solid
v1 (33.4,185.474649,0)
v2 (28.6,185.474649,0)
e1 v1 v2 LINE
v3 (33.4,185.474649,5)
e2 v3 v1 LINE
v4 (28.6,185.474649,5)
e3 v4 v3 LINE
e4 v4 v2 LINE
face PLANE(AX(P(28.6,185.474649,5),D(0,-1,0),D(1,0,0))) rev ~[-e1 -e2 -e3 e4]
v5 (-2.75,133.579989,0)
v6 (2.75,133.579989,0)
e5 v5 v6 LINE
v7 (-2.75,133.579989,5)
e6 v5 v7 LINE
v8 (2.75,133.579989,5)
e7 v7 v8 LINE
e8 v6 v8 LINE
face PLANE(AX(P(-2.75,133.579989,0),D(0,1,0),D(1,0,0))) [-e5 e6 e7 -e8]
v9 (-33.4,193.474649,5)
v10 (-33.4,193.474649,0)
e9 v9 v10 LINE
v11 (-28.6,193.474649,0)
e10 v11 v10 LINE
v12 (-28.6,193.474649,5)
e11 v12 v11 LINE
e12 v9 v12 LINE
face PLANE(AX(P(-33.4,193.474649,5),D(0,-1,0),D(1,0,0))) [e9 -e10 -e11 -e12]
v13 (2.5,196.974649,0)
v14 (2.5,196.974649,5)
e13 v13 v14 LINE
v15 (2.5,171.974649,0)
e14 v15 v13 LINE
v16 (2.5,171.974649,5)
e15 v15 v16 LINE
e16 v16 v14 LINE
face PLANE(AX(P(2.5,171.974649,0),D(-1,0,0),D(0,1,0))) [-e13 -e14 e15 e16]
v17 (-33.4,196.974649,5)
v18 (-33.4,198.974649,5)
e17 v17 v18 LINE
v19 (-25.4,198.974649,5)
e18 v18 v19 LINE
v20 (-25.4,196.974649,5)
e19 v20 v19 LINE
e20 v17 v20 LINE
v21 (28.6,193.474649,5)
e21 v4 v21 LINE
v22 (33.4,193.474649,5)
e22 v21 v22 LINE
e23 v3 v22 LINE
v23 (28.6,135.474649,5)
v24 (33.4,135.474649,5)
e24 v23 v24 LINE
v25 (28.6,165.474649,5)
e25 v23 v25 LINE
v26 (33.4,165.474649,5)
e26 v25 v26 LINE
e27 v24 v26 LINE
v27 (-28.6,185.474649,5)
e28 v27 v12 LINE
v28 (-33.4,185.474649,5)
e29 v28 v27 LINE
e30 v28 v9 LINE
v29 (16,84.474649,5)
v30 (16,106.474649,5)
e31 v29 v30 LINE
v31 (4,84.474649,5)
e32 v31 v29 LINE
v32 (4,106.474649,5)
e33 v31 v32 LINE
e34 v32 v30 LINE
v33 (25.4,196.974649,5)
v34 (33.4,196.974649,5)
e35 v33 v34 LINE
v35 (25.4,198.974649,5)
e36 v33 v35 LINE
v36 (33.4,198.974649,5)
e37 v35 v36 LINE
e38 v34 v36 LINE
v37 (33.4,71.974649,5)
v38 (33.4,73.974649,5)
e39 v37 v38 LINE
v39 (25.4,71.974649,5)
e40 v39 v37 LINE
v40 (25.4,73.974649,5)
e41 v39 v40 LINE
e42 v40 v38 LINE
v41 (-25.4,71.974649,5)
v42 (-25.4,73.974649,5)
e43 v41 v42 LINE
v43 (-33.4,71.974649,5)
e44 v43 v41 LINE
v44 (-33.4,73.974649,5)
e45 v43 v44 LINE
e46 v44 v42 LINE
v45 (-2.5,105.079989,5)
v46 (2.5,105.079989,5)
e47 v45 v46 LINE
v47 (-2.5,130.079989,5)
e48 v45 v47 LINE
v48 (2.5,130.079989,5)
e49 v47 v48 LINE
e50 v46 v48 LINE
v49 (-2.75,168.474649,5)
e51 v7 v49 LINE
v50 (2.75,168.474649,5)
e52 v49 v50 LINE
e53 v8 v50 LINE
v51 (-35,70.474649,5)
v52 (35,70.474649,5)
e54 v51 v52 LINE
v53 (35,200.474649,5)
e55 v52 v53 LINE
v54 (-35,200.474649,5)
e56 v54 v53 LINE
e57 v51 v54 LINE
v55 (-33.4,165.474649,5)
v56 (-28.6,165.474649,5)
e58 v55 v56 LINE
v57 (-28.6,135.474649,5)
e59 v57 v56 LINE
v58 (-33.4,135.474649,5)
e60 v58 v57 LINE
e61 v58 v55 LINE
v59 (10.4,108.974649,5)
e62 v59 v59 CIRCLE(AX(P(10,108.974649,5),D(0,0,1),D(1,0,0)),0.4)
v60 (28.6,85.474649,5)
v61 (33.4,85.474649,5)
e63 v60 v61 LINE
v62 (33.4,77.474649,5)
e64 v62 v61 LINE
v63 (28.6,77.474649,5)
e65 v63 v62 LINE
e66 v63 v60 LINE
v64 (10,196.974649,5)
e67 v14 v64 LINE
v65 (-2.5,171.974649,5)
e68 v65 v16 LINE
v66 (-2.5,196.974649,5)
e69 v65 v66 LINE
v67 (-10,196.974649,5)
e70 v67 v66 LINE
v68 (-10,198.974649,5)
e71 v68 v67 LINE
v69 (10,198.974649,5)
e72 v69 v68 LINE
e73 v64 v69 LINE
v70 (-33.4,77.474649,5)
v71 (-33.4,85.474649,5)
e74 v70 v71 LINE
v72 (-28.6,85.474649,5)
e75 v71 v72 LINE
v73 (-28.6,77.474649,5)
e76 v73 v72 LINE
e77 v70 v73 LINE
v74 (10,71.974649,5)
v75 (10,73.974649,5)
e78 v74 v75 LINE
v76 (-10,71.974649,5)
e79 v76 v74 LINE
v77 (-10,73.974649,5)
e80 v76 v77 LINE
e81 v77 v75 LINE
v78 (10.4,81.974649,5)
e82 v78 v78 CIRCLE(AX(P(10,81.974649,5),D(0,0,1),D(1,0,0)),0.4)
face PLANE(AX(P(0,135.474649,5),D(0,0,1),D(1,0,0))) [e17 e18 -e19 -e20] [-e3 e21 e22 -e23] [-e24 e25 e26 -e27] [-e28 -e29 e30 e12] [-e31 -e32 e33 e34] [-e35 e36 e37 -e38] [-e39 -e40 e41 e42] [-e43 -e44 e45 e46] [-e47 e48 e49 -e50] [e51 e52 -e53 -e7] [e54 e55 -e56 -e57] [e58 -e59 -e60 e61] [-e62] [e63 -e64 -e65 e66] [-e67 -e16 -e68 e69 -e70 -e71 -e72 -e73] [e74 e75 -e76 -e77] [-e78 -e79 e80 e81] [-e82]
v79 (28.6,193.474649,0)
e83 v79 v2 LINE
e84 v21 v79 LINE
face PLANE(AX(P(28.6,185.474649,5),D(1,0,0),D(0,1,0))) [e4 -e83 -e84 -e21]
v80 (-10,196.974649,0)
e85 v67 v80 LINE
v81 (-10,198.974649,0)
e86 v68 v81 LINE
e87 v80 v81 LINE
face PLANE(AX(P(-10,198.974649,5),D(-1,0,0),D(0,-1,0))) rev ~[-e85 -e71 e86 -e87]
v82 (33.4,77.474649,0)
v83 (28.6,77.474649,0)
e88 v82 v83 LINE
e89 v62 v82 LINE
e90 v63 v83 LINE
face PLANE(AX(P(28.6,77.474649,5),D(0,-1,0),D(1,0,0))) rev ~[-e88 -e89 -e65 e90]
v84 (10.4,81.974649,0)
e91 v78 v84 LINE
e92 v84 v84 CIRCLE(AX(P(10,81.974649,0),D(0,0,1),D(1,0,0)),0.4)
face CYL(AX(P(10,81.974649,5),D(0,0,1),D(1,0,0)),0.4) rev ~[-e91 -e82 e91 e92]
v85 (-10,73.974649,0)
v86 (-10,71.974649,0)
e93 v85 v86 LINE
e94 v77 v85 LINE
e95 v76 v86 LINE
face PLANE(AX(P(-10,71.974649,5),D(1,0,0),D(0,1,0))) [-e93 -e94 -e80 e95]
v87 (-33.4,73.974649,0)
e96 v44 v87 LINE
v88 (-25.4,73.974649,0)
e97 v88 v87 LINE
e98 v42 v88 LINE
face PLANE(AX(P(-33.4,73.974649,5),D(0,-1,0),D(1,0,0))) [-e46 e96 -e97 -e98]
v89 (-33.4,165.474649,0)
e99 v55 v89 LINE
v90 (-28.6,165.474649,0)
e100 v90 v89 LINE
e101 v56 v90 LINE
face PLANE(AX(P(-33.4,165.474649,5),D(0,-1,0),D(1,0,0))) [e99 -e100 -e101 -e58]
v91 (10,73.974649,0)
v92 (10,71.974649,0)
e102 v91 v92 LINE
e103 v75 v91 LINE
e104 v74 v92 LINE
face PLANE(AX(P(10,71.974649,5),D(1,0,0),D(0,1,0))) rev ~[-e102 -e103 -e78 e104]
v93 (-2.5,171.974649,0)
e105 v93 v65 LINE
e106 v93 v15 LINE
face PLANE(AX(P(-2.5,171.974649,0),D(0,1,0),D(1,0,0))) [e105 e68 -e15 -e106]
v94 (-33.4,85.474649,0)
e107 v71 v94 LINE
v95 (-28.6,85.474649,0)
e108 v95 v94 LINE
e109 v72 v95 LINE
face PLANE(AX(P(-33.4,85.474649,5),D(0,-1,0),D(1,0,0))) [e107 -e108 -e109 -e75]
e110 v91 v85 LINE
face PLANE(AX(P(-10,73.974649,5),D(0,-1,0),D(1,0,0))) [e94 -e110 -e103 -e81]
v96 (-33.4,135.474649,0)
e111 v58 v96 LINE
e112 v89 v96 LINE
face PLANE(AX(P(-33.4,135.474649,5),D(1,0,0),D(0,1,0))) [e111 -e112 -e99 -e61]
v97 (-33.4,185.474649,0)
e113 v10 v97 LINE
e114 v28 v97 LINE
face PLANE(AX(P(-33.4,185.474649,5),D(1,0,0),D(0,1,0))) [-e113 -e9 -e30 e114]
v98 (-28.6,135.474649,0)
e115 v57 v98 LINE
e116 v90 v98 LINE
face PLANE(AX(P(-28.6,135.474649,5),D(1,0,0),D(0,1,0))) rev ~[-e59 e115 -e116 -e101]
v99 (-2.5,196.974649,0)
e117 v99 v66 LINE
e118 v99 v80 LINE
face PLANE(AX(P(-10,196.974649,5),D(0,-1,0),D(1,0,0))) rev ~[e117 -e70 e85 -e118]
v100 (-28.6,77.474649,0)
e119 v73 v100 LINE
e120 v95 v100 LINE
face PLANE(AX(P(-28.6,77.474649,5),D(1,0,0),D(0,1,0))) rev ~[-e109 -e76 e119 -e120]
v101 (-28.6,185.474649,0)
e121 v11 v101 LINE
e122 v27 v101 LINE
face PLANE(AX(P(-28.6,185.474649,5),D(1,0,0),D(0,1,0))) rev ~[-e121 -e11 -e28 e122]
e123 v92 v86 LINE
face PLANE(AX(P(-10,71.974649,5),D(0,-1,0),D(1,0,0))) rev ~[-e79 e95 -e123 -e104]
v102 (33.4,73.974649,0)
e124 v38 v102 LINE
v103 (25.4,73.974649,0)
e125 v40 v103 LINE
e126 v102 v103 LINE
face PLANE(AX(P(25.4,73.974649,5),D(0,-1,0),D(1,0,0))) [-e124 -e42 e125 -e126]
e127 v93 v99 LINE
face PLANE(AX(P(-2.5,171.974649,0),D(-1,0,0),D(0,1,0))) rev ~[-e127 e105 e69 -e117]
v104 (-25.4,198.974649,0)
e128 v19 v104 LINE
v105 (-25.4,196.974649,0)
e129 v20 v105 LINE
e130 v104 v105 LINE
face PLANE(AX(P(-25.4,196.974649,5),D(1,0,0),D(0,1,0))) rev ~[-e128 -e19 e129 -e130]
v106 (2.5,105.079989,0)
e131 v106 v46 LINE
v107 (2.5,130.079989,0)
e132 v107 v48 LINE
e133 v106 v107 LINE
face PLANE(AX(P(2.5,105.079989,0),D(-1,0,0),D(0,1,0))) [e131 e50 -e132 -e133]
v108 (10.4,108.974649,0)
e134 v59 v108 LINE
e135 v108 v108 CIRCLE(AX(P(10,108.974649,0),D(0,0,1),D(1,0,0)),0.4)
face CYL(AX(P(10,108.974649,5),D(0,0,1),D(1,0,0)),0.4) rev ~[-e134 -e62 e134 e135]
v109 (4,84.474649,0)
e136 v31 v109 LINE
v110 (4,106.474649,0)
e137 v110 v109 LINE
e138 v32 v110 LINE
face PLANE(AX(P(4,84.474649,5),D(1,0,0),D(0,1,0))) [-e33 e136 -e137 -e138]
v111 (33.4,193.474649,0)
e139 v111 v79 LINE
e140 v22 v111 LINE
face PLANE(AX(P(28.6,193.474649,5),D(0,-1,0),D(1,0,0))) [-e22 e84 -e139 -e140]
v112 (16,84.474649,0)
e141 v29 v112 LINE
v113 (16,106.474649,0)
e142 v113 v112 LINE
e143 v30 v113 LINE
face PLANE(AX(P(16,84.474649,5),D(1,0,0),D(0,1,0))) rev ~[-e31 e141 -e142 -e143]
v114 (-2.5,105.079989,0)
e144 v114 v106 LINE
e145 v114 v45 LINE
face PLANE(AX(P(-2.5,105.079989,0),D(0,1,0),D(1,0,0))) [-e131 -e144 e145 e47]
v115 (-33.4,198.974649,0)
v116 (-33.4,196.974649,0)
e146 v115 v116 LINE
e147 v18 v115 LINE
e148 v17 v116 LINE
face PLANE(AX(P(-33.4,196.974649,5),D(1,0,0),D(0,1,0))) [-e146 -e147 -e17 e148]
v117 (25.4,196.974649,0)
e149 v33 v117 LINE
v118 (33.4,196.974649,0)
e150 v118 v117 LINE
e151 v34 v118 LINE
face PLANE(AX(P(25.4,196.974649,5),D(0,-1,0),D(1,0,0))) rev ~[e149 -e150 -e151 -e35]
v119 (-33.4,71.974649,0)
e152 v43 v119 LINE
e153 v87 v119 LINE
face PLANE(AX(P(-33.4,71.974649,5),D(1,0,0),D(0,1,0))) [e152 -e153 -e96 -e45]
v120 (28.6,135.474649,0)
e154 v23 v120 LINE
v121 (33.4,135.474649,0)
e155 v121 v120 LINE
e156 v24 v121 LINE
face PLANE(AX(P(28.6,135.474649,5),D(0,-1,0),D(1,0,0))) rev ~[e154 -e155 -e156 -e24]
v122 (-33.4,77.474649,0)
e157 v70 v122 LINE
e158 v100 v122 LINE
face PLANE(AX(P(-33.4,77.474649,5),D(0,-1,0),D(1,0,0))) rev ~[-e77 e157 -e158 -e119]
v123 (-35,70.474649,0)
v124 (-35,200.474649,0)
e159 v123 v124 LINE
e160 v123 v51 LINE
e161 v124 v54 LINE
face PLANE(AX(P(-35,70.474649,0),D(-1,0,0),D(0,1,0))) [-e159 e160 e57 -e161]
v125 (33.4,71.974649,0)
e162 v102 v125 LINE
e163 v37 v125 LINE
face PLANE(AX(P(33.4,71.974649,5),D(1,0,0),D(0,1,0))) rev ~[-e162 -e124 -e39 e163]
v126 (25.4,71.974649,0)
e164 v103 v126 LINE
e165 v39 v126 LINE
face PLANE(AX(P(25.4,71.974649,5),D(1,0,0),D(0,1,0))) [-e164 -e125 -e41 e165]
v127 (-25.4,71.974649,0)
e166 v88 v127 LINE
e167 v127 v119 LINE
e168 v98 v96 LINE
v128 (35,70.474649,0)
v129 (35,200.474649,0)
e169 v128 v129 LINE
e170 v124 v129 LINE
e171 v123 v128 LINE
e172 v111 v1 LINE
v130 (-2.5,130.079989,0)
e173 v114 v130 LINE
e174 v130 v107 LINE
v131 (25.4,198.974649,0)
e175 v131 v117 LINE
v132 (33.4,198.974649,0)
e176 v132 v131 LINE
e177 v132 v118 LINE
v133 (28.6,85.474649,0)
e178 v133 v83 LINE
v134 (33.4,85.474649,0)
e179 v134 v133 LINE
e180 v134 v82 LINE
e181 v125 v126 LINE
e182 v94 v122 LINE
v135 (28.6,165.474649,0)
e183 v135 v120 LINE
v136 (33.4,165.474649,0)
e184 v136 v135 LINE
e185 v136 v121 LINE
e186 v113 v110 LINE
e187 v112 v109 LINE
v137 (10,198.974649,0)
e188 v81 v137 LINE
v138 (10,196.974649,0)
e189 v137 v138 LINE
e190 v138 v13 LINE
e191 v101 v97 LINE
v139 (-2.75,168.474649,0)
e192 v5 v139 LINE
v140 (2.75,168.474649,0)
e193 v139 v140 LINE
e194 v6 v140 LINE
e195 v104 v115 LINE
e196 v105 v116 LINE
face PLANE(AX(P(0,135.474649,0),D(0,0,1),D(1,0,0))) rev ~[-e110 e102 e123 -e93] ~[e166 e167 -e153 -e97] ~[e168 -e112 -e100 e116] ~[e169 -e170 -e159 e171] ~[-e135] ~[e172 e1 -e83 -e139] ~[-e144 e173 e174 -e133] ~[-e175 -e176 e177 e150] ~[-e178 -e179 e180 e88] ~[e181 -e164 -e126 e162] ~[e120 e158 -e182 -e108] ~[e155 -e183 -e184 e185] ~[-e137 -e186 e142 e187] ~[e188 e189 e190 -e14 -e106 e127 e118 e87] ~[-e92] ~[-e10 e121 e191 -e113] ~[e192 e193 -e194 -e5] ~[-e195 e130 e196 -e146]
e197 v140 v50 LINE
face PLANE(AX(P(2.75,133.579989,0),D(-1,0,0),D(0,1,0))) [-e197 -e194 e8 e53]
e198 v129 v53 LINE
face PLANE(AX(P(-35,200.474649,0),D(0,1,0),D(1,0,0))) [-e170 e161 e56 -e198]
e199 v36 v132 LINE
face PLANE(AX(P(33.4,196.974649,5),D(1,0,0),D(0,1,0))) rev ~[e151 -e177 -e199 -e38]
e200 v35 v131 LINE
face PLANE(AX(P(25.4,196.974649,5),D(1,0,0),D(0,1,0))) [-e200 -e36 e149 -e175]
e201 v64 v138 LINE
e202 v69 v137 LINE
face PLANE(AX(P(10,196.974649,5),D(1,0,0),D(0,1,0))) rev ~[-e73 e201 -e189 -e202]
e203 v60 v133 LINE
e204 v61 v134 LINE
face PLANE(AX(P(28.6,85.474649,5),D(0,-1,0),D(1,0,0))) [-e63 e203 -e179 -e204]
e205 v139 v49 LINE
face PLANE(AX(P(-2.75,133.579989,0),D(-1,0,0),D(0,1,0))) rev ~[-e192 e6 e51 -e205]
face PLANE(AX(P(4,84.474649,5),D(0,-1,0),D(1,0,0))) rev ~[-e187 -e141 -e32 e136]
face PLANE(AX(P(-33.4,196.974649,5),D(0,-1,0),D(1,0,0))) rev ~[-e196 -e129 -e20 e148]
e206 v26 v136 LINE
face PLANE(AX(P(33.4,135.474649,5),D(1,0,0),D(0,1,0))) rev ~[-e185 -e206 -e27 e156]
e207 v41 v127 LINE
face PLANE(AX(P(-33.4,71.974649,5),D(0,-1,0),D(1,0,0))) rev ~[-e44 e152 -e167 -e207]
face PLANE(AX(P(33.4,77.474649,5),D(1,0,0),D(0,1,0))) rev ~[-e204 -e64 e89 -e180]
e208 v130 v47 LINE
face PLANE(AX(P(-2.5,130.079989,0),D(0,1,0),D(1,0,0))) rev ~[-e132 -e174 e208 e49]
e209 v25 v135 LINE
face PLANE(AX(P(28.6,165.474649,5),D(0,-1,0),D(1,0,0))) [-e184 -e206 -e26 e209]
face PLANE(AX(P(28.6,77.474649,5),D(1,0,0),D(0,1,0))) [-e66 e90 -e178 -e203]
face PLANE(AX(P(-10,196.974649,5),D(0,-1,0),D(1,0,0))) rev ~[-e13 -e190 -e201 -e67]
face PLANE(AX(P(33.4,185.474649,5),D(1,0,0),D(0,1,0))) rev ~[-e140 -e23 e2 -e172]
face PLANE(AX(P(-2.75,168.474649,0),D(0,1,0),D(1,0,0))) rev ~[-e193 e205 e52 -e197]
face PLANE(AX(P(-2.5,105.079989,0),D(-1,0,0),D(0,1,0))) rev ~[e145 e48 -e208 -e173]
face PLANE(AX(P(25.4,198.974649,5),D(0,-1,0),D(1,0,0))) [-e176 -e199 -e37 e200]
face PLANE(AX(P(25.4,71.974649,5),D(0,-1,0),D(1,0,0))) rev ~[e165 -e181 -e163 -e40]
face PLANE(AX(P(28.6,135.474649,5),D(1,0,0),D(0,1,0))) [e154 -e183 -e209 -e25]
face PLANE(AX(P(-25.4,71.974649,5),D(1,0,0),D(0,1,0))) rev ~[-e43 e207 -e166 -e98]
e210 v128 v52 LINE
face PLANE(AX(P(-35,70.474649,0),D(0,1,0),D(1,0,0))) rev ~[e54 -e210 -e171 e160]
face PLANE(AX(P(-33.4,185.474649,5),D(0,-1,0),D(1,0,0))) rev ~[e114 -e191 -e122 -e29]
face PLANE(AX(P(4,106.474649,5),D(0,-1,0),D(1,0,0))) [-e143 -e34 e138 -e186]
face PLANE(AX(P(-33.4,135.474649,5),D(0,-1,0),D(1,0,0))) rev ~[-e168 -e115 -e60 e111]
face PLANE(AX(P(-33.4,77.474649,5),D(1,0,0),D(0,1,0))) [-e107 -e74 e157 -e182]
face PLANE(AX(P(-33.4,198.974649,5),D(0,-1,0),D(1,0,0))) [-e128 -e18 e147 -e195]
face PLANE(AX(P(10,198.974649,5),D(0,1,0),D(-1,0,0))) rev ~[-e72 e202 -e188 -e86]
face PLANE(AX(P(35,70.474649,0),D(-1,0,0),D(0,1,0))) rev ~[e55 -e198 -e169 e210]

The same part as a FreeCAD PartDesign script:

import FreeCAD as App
import Part
import Sketcher
from FreeCAD import Vector

doc = App.newDocument("Part")
body = doc.addObject("PartDesign::Body", "Body")

# Sketch on XY plane
sketch1 = body.newObject("Sketcher::SketchObject", "Sketch")
sketch1.AttachmentSupport = (doc.getObject("XY_Plane"), [""])
sketch1.MapMode = "FlatFace"
sketch1.addGeometry([
    Part.LineSegment(Vector(-35, 200.474649, 0), Vector(-35, 70.474649, 0)),  # 0
    Part.LineSegment(Vector(-35, 70.474649, 0), Vector(35, 70.474649, 0)),  # 1
    Part.LineSegment(Vector(35, 70.474649, 0), Vector(35, 200.474649, 0)),  # 2
    Part.LineSegment(Vector(35, 200.474649, 0), Vector(-35, 200.474649, 0)),  # 3
    Part.LineSegment(Vector(2.5, 105.079989, 0), Vector(-2.5, 105.079989, 0)),  # 4
    Part.LineSegment(Vector(-2.5, 105.079989, 0), Vector(-2.5, 130.079989, 0)),  # 5
    Part.LineSegment(Vector(-2.5, 130.079989, 0), Vector(2.5, 130.079989, 0)),  # 6
    Part.LineSegment(Vector(2.5, 130.079989, 0), Vector(2.5, 105.079989, 0)),  # 7
    Part.LineSegment(Vector(2.75, 133.579989, 0), Vector(-2.75, 133.579989, 0)),  # 8
    Part.LineSegment(Vector(-2.75, 133.579989, 0), Vector(-2.75, 168.474649, 0)),  # 9
    Part.LineSegment(Vector(-2.75, 168.474649, 0), Vector(2.75, 168.474649, 0)),  # 10
    Part.LineSegment(Vector(2.75, 168.474649, 0), Vector(2.75, 133.579989, 0)),  # 11
    Part.LineSegment(Vector(2.5, 171.974649, 0), Vector(-2.5, 171.974649, 0)),  # 12
    Part.LineSegment(Vector(-2.5, 171.974649, 0), Vector(-2.5, 196.974649, 0)),  # 13
    Part.LineSegment(Vector(-2.5, 196.974649, 0), Vector(2.5, 196.974649, 0)),  # 14
    Part.LineSegment(Vector(2.5, 196.974649, 0), Vector(2.5, 171.974649, 0)),  # 15
], False)
sketch1.addConstraint([
    Sketcher.Constraint("Coincident", 0, 2, 1, 1),
    Sketcher.Constraint("Coincident", 1, 2, 2, 1),
    Sketcher.Constraint("Coincident", 2, 2, 3, 1),
    Sketcher.Constraint("Coincident", 3, 2, 0, 1),
    Sketcher.Constraint("Coincident", 4, 2, 5, 1),
    Sketcher.Constraint("Coincident", 5, 2, 6, 1),
    Sketcher.Constraint("Coincident", 6, 2, 7, 1),
    Sketcher.Constraint("Coincident", 7, 2, 4, 1),
    Sketcher.Constraint("Coincident", 8, 2, 9, 1),
    Sketcher.Constraint("Coincident", 9, 2, 10, 1),
    Sketcher.Constraint("Coincident", 10, 2, 11, 1),
    Sketcher.Constraint("Coincident", 11, 2, 8, 1),
    Sketcher.Constraint("Coincident", 12, 2, 13, 1),
    Sketcher.Constraint("Coincident", 13, 2, 14, 1),
    Sketcher.Constraint("Coincident", 14, 2, 15, 1),
    Sketcher.Constraint("Coincident", 15, 2, 12, 1),
    Sketcher.Constraint("Vertical", 0),
    Sketcher.Constraint("Horizontal", 1),
    Sketcher.Constraint("Vertical", 2),
    Sketcher.Constraint("Horizontal", 3),
    Sketcher.Constraint("Horizontal", 4),
    Sketcher.Constraint("Vertical", 5),
    Sketcher.Constraint("Horizontal", 6),
    Sketcher.Constraint("Vertical", 7),
    Sketcher.Constraint("Horizontal", 8),
    Sketcher.Constraint("Vertical", 9),
    Sketcher.Constraint("Horizontal", 10),
    Sketcher.Constraint("Vertical", 11),
    Sketcher.Constraint("Horizontal", 12),
    Sketcher.Constraint("Vertical", 13),
    Sketcher.Constraint("Horizontal", 14),
    Sketcher.Constraint("Vertical", 15),
    Sketcher.Constraint("Vertical", 5, 2, 12, 2),
    Sketcher.Constraint("Vertical", 7, 2, 14, 2),
    Sketcher.Constraint("Equal", 7, 13),
    Sketcher.Constraint("DistanceX", 1, 1, 1, 2, 70.0),
    Sketcher.Constraint("DistanceX", 4, 2, 4, 1, 5.0),
    Sketcher.Constraint("DistanceY", 0, 2, 0, 1, 130.0),
    Sketcher.Constraint("DistanceY", 5, 1, 5, 2, 25.0),
    Sketcher.Constraint("DistanceX", 8, 2, 8, 1, 5.5),
    Sketcher.Constraint("DistanceX", 0, 2, -1, 1, 35.0),
    Sketcher.Constraint("DistanceY", 9, 2, 3, 2, 32.0),
    Sketcher.Constraint("DistanceX", 4, 2, -1, 1, 2.5),
    Sketcher.Constraint("DistanceY", 5, 2, 8, 2, 3.5),
    Sketcher.Constraint("DistanceY", 9, 2, 12, 2, 3.5),
    Sketcher.Constraint("DistanceX", 8, 2, -1, 1, 2.75),
    Sketcher.Constraint("DistanceY", 9, 1, 9, 2, 34.89466),
    Sketcher.Constraint("DistanceY", -1, 1, 0, 2, 70.474649),
])
pad1 = body.newObject("PartDesign::Pad", "Pad")
pad1.Profile = sketch1
pad1.Length = 5

# Sketch on XY plane
sketch2 = body.newObject("Sketcher::SketchObject", "Sketch001")
sketch2.AttachmentSupport = (doc.getObject("XY_Plane"), [""])
sketch2.MapMode = "FlatFace"
sketch2.AttachmentOffset = App.Placement(Vector(0, 0, 5), App.Rotation())
sketch2.addGeometry([
    Part.LineSegment(Vector(-33.4, 193.474649, 0), Vector(-33.4, 185.474649, 0)),
    Part.LineSegment(Vector(-33.4, 185.474649, 0), Vector(-28.6, 185.474649, 0)),
    Part.LineSegment(Vector(-28.6, 185.474649, 0), Vector(-28.6, 193.474649, 0)),
    Part.LineSegment(Vector(-28.6, 193.474649, 0), Vector(-33.4, 193.474649, 0)),
], False)
sketch2.addConstraint([
    Sketcher.Constraint("Coincident", 0, 2, 1, 1),
    Sketcher.Constraint("Coincident", 1, 2, 2, 1),
    Sketcher.Constraint("Coincident", 2, 2, 3, 1),
    Sketcher.Constraint("Coincident", 3, 2, 0, 1),
    Sketcher.Constraint("Vertical", 0),
    Sketcher.Constraint("Horizontal", 1),
    Sketcher.Constraint("Vertical", 2),
    Sketcher.Constraint("Horizontal", 3),
    Sketcher.Constraint("DistanceY", 0, 2, 0, 1, 8.0),
    Sketcher.Constraint("DistanceX", 1, 1, 1, 2, 4.8),
    Sketcher.Constraint("DistanceX", 0, 2, -1, 1, 33.4),
    Sketcher.Constraint("DistanceY", -1, 1, 0, 2, 185.474649),
])
pocket1 = body.newObject("PartDesign::Pocket", "Pocket")
pocket1.Profile = sketch2
pocket1.Type = "UpToFirst"

# Sketch on XY plane
sketch3 = body.newObject("Sketcher::SketchObject", "Sketch002")
sketch3.AttachmentSupport = (doc.getObject("XY_Plane"), [""])
sketch3.MapMode = "FlatFace"
sketch3.AttachmentOffset = App.Placement(Vector(0, 0, 5), App.Rotation())
sketch3.addGeometry([
    Part.LineSegment(Vector(-33.4, 165.474649, 0), Vector(-33.4, 135.474649, 0)),
    Part.LineSegment(Vector(-33.4, 135.474649, 0), Vector(-28.6, 135.474649, 0)),
    Part.LineSegment(Vector(-28.6, 135.474649, 0), Vector(-28.6, 165.474649, 0)),
    Part.LineSegment(Vector(-28.6, 165.474649, 0), Vector(-33.4, 165.474649, 0)),
], False)
sketch3.addConstraint([
    Sketcher.Constraint("Coincident", 0, 2, 1, 1),
    Sketcher.Constraint("Coincident", 1, 2, 2, 1),
    Sketcher.Constraint("Coincident", 2, 2, 3, 1),
    Sketcher.Constraint("Coincident", 3, 2, 0, 1),
    Sketcher.Constraint("Vertical", 0),
    Sketcher.Constraint("Horizontal", 1),
    Sketcher.Constraint("Vertical", 2),
    Sketcher.Constraint("Horizontal", 3),
    Sketcher.Constraint("DistanceY", 0, 2, 0, 1, 30.0),
    Sketcher.Constraint("DistanceX", 1, 1, 1, 2, 4.8),
    Sketcher.Constraint("DistanceX", 0, 2, -1, 1, 33.4),
    Sketcher.Constraint("DistanceY", -1, 1, 0, 2, 135.474649),
])
pocket2 = body.newObject("PartDesign::Pocket", "Pocket001")
pocket2.Profile = sketch3
pocket2.Type = "UpToFirst"

# Sketch on XY plane
sketch4 = body.newObject("Sketcher::SketchObject", "Sketch003")
sketch4.AttachmentSupport = (doc.getObject("XY_Plane"), [""])
sketch4.MapMode = "FlatFace"
sketch4.AttachmentOffset = App.Placement(Vector(0, 0, 5), App.Rotation())
sketch4.addGeometry([
    Part.LineSegment(Vector(-33.4, 85.474649, 0), Vector(-33.4, 77.474649, 0)),
    Part.LineSegment(Vector(-33.4, 77.474649, 0), Vector(-28.6, 77.474649, 0)),
    Part.LineSegment(Vector(-28.6, 77.474649, 0), Vector(-28.6, 85.474649, 0)),
    Part.LineSegment(Vector(-28.6, 85.474649, 0), Vector(-33.4, 85.474649, 0)),
], False)
sketch4.addConstraint([
    Sketcher.Constraint("Coincident", 0, 2, 1, 1),
    Sketcher.Constraint("Coincident", 1, 2, 2, 1),
    Sketcher.Constraint("Coincident", 2, 2, 3, 1),
    Sketcher.Constraint("Coincident", 3, 2, 0, 1),
    Sketcher.Constraint("Vertical", 0),
    Sketcher.Constraint("Horizontal", 1),
    Sketcher.Constraint("Vertical", 2),
    Sketcher.Constraint("Horizontal", 3),
    Sketcher.Constraint("DistanceY", 0, 2, 0, 1, 8.0),
    Sketcher.Constraint("DistanceX", 1, 1, 1, 2, 4.8),
    Sketcher.Constraint("DistanceX", 0, 2, -1, 1, 33.4),
    Sketcher.Constraint("DistanceY", -1, 1, 0, 2, 77.474649),
])
pocket3 = body.newObject("PartDesign::Pocket", "Pocket002")
pocket3.Profile = sketch4
pocket3.Type = "UpToFirst"

# Sketch on XY plane
sketch5 = body.newObject("Sketcher::SketchObject", "Sketch004")
sketch5.AttachmentSupport = (doc.getObject("XY_Plane"), [""])
sketch5.MapMode = "FlatFace"
sketch5.AttachmentOffset = App.Placement(Vector(0, 0, 5), App.Rotation())
sketch5.addGeometry([
    Part.LineSegment(Vector(28.6, 85.474649, 0), Vector(28.6, 77.474649, 0)),
    Part.LineSegment(Vector(28.6, 77.474649, 0), Vector(33.4, 77.474649, 0)),
    Part.LineSegment(Vector(33.4, 77.474649, 0), Vector(33.4, 85.474649, 0)),
    Part.LineSegment(Vector(33.4, 85.474649, 0), Vector(28.6, 85.474649, 0)),
], False)
sketch5.addConstraint([
    Sketcher.Constraint("Coincident", 0, 2, 1, 1),
    Sketcher.Constraint("Coincident", 1, 2, 2, 1),
    Sketcher.Constraint("Coincident", 2, 2, 3, 1),
    Sketcher.Constraint("Coincident", 3, 2, 0, 1),
    Sketcher.Constraint("Vertical", 0),
    Sketcher.Constraint("Horizontal", 1),
    Sketcher.Constraint("Vertical", 2),
    Sketcher.Constraint("Horizontal", 3),
    Sketcher.Constraint("DistanceY", 0, 2, 0, 1, 8.0),
    Sketcher.Constraint("DistanceX", 1, 1, 1, 2, 4.8),
    Sketcher.Constraint("DistanceX", -1, 1, 0, 2, 28.6),
    Sketcher.Constraint("DistanceY", -1, 1, 0, 2, 77.474649),
])
pocket4 = body.newObject("PartDesign::Pocket", "Pocket003")
pocket4.Profile = sketch5
pocket4.Type = "UpToFirst"

# Sketch on XY plane
sketch6 = body.newObject("Sketcher::SketchObject", "Sketch005")
sketch6.AttachmentSupport = (doc.getObject("XY_Plane"), [""])
sketch6.MapMode = "FlatFace"
sketch6.AttachmentOffset = App.Placement(Vector(0, 0, 5), App.Rotation())
sketch6.addGeometry([
    Part.LineSegment(Vector(28.6, 165.474649, 0), Vector(28.6, 135.474649, 0)),
    Part.LineSegment(Vector(28.6, 135.474649, 0), Vector(33.4, 135.474649, 0)),
    Part.LineSegment(Vector(33.4, 135.474649, 0), Vector(33.4, 165.474649, 0)),
    Part.LineSegment(Vector(33.4, 165.474649, 0), Vector(28.6, 165.474649, 0)),
], False)
sketch6.addConstraint([
    Sketcher.Constraint("Coincident", 0, 2, 1, 1),
    Sketcher.Constraint("Coincident", 1, 2, 2, 1),
    Sketcher.Constraint("Coincident", 2, 2, 3, 1),
    Sketcher.Constraint("Coincident", 3, 2, 0, 1),
    Sketcher.Constraint("Vertical", 0),
    Sketcher.Constraint("Horizontal", 1),
    Sketcher.Constraint("Vertical", 2),
    Sketcher.Constraint("Horizontal", 3),
    Sketcher.Constraint("DistanceY", 0, 2, 0, 1, 30.0),
    Sketcher.Constraint("DistanceX", 1, 1, 1, 2, 4.8),
    Sketcher.Constraint("DistanceX", -1, 1, 0, 2, 28.6),
    Sketcher.Constraint("DistanceY", -1, 1, 0, 2, 135.474649),
])
pocket5 = body.newObject("PartDesign::Pocket", "Pocket004")
pocket5.Profile = sketch6
pocket5.Type = "UpToFirst"

# Sketch on XY plane
sketch7 = body.newObject("Sketcher::SketchObject", "Sketch006")
sketch7.AttachmentSupport = (doc.getObject("XY_Plane"), [""])
sketch7.MapMode = "FlatFace"
sketch7.AttachmentOffset = App.Placement(Vector(0, 0, 5), App.Rotation())
sketch7.addGeometry([
    Part.LineSegment(Vector(28.6, 193.474649, 0), Vector(28.6, 185.474649, 0)),
    Part.LineSegment(Vector(28.6, 185.474649, 0), Vector(33.4, 185.474649, 0)),
    Part.LineSegment(Vector(33.4, 185.474649, 0), Vector(33.4, 193.474649, 0)),
    Part.LineSegment(Vector(33.4, 193.474649, 0), Vector(28.6, 193.474649, 0)),
], False)
sketch7.addConstraint([
    Sketcher.Constraint("Coincident", 0, 2, 1, 1),
    Sketcher.Constraint("Coincident", 1, 2, 2, 1),
    Sketcher.Constraint("Coincident", 2, 2, 3, 1),
    Sketcher.Constraint("Coincident", 3, 2, 0, 1),
    Sketcher.Constraint("Vertical", 0),
    Sketcher.Constraint("Horizontal", 1),
    Sketcher.Constraint("Vertical", 2),
    Sketcher.Constraint("Horizontal", 3),
    Sketcher.Constraint("DistanceY", 0, 2, 0, 1, 8.0),
    Sketcher.Constraint("DistanceX", 1, 1, 1, 2, 4.8),
    Sketcher.Constraint("DistanceX", -1, 1, 0, 2, 28.6),
    Sketcher.Constraint("DistanceY", -1, 1, 0, 2, 185.474649),
])
pocket6 = body.newObject("PartDesign::Pocket", "Pocket005")
pocket6.Profile = sketch7
pocket6.Type = "UpToFirst"

# Sketch on XY plane
sketch8 = body.newObject("Sketcher::SketchObject", "Sketch007")
sketch8.AttachmentSupport = (doc.getObject("XY_Plane"), [""])
sketch8.MapMode = "FlatFace"
sketch8.AttachmentOffset = App.Placement(Vector(0, 0, 5), App.Rotation())
sketch8.addGeometry([
    Part.LineSegment(Vector(10, 196.974649, 0), Vector(10, 198.974649, 0)),
    Part.LineSegment(Vector(10, 198.974649, 0), Vector(-10, 198.974649, 0)),
    Part.LineSegment(Vector(-10, 198.974649, 0), Vector(-10, 196.974649, 0)),
    Part.LineSegment(Vector(-10, 196.974649, 0), Vector(10, 196.974649, 0)),
], False)
sketch8.addConstraint([
    Sketcher.Constraint("Coincident", 0, 2, 1, 1),
    Sketcher.Constraint("Coincident", 1, 2, 2, 1),
    Sketcher.Constraint("Coincident", 2, 2, 3, 1),
    Sketcher.Constraint("Coincident", 3, 2, 0, 1),
    Sketcher.Constraint("Vertical", 0),
    Sketcher.Constraint("Horizontal", 1),
    Sketcher.Constraint("Vertical", 2),
    Sketcher.Constraint("Horizontal", 3),
    Sketcher.Constraint("DistanceX", 1, 2, 1, 1, 20.0),
    Sketcher.Constraint("DistanceY", 0, 1, 0, 2, 2.0),
    Sketcher.Constraint("DistanceX", -1, 1, 0, 2, 10.0),
    Sketcher.Constraint("DistanceY", -1, 1, 0, 2, 198.974649),
])
pocket7 = body.newObject("PartDesign::Pocket", "Pocket006")
pocket7.Profile = sketch8
pocket7.Type = "UpToFirst"

# Sketch on XY plane
sketch9 = body.newObject("Sketcher::SketchObject", "Sketch008")
sketch9.AttachmentSupport = (doc.getObject("XY_Plane"), [""])
sketch9.MapMode = "FlatFace"
sketch9.AttachmentOffset = App.Placement(Vector(0, 0, 5), App.Rotation())
sketch9.addGeometry([
    Part.LineSegment(Vector(25.4, 198.974649, 0), Vector(25.4, 196.974649, 0)),
    Part.LineSegment(Vector(25.4, 196.974649, 0), Vector(33.4, 196.974649, 0)),
    Part.LineSegment(Vector(33.4, 196.974649, 0), Vector(33.4, 198.974649, 0)),
    Part.LineSegment(Vector(33.4, 198.974649, 0), Vector(25.4, 198.974649, 0)),
], False)
sketch9.addConstraint([
    Sketcher.Constraint("Coincident", 0, 2, 1, 1),
    Sketcher.Constraint("Coincident", 1, 2, 2, 1),
    Sketcher.Constraint("Coincident", 2, 2, 3, 1),
    Sketcher.Constraint("Coincident", 3, 2, 0, 1),
    Sketcher.Constraint("Vertical", 0),
    Sketcher.Constraint("Horizontal", 1),
    Sketcher.Constraint("Vertical", 2),
    Sketcher.Constraint("Horizontal", 3),
    Sketcher.Constraint("DistanceX", 1, 1, 1, 2, 8.0),
    Sketcher.Constraint("DistanceY", 0, 2, 0, 1, 2.0),
    Sketcher.Constraint("DistanceX", -1, 1, 0, 2, 25.4),
    Sketcher.Constraint("DistanceY", -1, 1, 0, 2, 196.974649),
])
pocket8 = body.newObject("PartDesign::Pocket", "Pocket007")
pocket8.Profile = sketch9
pocket8.Type = "UpToFirst"

# Sketch on XY plane
sketch10 = body.newObject("Sketcher::SketchObject", "Sketch009")
sketch10.AttachmentSupport = (doc.getObject("XY_Plane"), [""])
sketch10.MapMode = "FlatFace"
sketch10.AttachmentOffset = App.Placement(Vector(0, 0, 5), App.Rotation())
sketch10.addGeometry([
    Part.LineSegment(Vector(-33.4, 198.974649, 0), Vector(-33.4, 196.974649, 0)),
    Part.LineSegment(Vector(-33.4, 196.974649, 0), Vector(-25.4, 196.974649, 0)),
    Part.LineSegment(Vector(-25.4, 196.974649, 0), Vector(-25.4, 198.974649, 0)),
    Part.LineSegment(Vector(-25.4, 198.974649, 0), Vector(-33.4, 198.974649, 0)),
], False)
sketch10.addConstraint([
    Sketcher.Constraint("Coincident", 0, 2, 1, 1),
    Sketcher.Constraint("Coincident", 1, 2, 2, 1),
    Sketcher.Constraint("Coincident", 2, 2, 3, 1),
    Sketcher.Constraint("Coincident", 3, 2, 0, 1),
    Sketcher.Constraint("Vertical", 0),
    Sketcher.Constraint("Horizontal", 1),
    Sketcher.Constraint("Vertical", 2),
    Sketcher.Constraint("Horizontal", 3),
    Sketcher.Constraint("DistanceX", 1, 1, 1, 2, 8.0),
    Sketcher.Constraint("DistanceY", 0, 2, 0, 1, 2.0),
    Sketcher.Constraint("DistanceX", 0, 2, -1, 1, 33.4),
    Sketcher.Constraint("DistanceY", -1, 1, 0, 2, 196.974649),
])
pocket9 = body.newObject("PartDesign::Pocket", "Pocket008")
pocket9.Profile = sketch10
pocket9.Type = "UpToFirst"

# Sketch on XY plane
sketch11 = body.newObject("Sketcher::SketchObject", "Sketch010")
sketch11.AttachmentSupport = (doc.getObject("XY_Plane"), [""])
sketch11.MapMode = "FlatFace"
sketch11.AttachmentOffset = App.Placement(Vector(0, 0, 5), App.Rotation())
sketch11.addGeometry([
    Part.LineSegment(Vector(-33.4, 73.974649, 0), Vector(-33.4, 71.974649, 0)),
    Part.LineSegment(Vector(-33.4, 71.974649, 0), Vector(-25.4, 71.974649, 0)),
    Part.LineSegment(Vector(-25.4, 71.974649, 0), Vector(-25.4, 73.974649, 0)),
    Part.LineSegment(Vector(-25.4, 73.974649, 0), Vector(-33.4, 73.974649, 0)),
], False)
sketch11.addConstraint([
    Sketcher.Constraint("Coincident", 0, 2, 1, 1),
    Sketcher.Constraint("Coincident", 1, 2, 2, 1),
    Sketcher.Constraint("Coincident", 2, 2, 3, 1),
    Sketcher.Constraint("Coincident", 3, 2, 0, 1),
    Sketcher.Constraint("Vertical", 0),
    Sketcher.Constraint("Horizontal", 1),
    Sketcher.Constraint("Vertical", 2),
    Sketcher.Constraint("Horizontal", 3),
    Sketcher.Constraint("DistanceX", 1, 1, 1, 2, 8.0),
    Sketcher.Constraint("DistanceY", 0, 2, 0, 1, 2.0),
    Sketcher.Constraint("DistanceX", 0, 2, -1, 1, 33.4),
    Sketcher.Constraint("DistanceY", -1, 1, 0, 2, 71.974649),
])
pocket10 = body.newObject("PartDesign::Pocket", "Pocket009")
pocket10.Profile = sketch11
pocket10.Type = "UpToFirst"

# Sketch on XY plane
sketch12 = body.newObject("Sketcher::SketchObject", "Sketch011")
sketch12.AttachmentSupport = (doc.getObject("XY_Plane"), [""])
sketch12.MapMode = "FlatFace"
sketch12.AttachmentOffset = App.Placement(Vector(0, 0, 5), App.Rotation())
sketch12.addGeometry([
    Part.LineSegment(Vector(-10, 73.974649, 0), Vector(-10, 71.974649, 0)),
    Part.LineSegment(Vector(-10, 71.974649, 0), Vector(10, 71.974649, 0)),
    Part.LineSegment(Vector(10, 71.974649, 0), Vector(10, 73.974649, 0)),
    Part.LineSegment(Vector(10, 73.974649, 0), Vector(-10, 73.974649, 0)),
], False)
sketch12.addConstraint([
    Sketcher.Constraint("Coincident", 0, 2, 1, 1),
    Sketcher.Constraint("Coincident", 1, 2, 2, 1),
    Sketcher.Constraint("Coincident", 2, 2, 3, 1),
    Sketcher.Constraint("Coincident", 3, 2, 0, 1),
    Sketcher.Constraint("Vertical", 0),
    Sketcher.Constraint("Horizontal", 1),
    Sketcher.Constraint("Vertical", 2),
    Sketcher.Constraint("Horizontal", 3),
    Sketcher.Constraint("DistanceX", 1, 1, 1, 2, 20.0),
    Sketcher.Constraint("DistanceY", 0, 2, 0, 1, 2.0),
    Sketcher.Constraint("DistanceX", 0, 2, -1, 1, 10.0),
    Sketcher.Constraint("DistanceY", -1, 1, 0, 2, 71.974649),
])
pocket11 = body.newObject("PartDesign::Pocket", "Pocket010")
pocket11.Profile = sketch12
pocket11.Type = "UpToFirst"

# Sketch on XY plane
sketch13 = body.newObject("Sketcher::SketchObject", "Sketch012")
sketch13.AttachmentSupport = (doc.getObject("XY_Plane"), [""])
sketch13.MapMode = "FlatFace"
sketch13.AttachmentOffset = App.Placement(Vector(0, 0, 5), App.Rotation())
sketch13.addGeometry([
    Part.LineSegment(Vector(25.4, 73.974649, 0), Vector(25.4, 71.974649, 0)),
    Part.LineSegment(Vector(25.4, 71.974649, 0), Vector(33.4, 71.974649, 0)),
    Part.LineSegment(Vector(33.4, 71.974649, 0), Vector(33.4, 73.974649, 0)),
    Part.LineSegment(Vector(33.4, 73.974649, 0), Vector(25.4, 73.974649, 0)),
], False)
sketch13.addConstraint([
    Sketcher.Constraint("Coincident", 0, 2, 1, 1),
    Sketcher.Constraint("Coincident", 1, 2, 2, 1),
    Sketcher.Constraint("Coincident", 2, 2, 3, 1),
    Sketcher.Constraint("Coincident", 3, 2, 0, 1),
    Sketcher.Constraint("Vertical", 0),
    Sketcher.Constraint("Horizontal", 1),
    Sketcher.Constraint("Vertical", 2),
    Sketcher.Constraint("Horizontal", 3),
    Sketcher.Constraint("DistanceX", 1, 1, 1, 2, 8.0),
    Sketcher.Constraint("DistanceY", 0, 2, 0, 1, 2.0),
    Sketcher.Constraint("DistanceX", -1, 1, 0, 2, 25.4),
    Sketcher.Constraint("DistanceY", -1, 1, 0, 2, 71.974649),
])
pocket12 = body.newObject("PartDesign::Pocket", "Pocket011")
pocket12.Profile = sketch13
pocket12.Type = "UpToFirst"

# Sketch on XY plane
sketch14 = body.newObject("Sketcher::SketchObject", "Sketch013")
sketch14.AttachmentSupport = (doc.getObject("XY_Plane"), [""])
sketch14.MapMode = "FlatFace"
sketch14.AttachmentOffset = App.Placement(Vector(0, 0, 5), App.Rotation())
sketch14.addGeometry([
    Part.LineSegment(Vector(4, 106.474649, 0), Vector(4, 84.474649, 0)),
    Part.LineSegment(Vector(4, 84.474649, 0), Vector(16, 84.474649, 0)),
    Part.LineSegment(Vector(16, 84.474649, 0), Vector(16, 106.474649, 0)),
    Part.LineSegment(Vector(16, 106.474649, 0), Vector(4, 106.474649, 0)),
], False)
sketch14.addConstraint([
    Sketcher.Constraint("Coincident", 0, 2, 1, 1),
    Sketcher.Constraint("Coincident", 1, 2, 2, 1),
    Sketcher.Constraint("Coincident", 2, 2, 3, 1),
    Sketcher.Constraint("Coincident", 3, 2, 0, 1),
    Sketcher.Constraint("Vertical", 0),
    Sketcher.Constraint("Horizontal", 1),
    Sketcher.Constraint("Vertical", 2),
    Sketcher.Constraint("Horizontal", 3),
    Sketcher.Constraint("DistanceX", 1, 1, 1, 2, 12.0),
    Sketcher.Constraint("DistanceY", 0, 2, 0, 1, 22.0),
    Sketcher.Constraint("DistanceX", -1, 1, 0, 2, 4.0),
    Sketcher.Constraint("DistanceY", -1, 1, 0, 2, 84.474649),
])
pocket13 = body.newObject("PartDesign::Pocket", "Pocket012")
pocket13.Profile = sketch14
pocket13.Type = "UpToFirst"

# Sketch on XY plane
sketch15 = body.newObject("Sketcher::SketchObject", "Sketch014")
sketch15.AttachmentSupport = (doc.getObject("XY_Plane"), [""])
sketch15.MapMode = "FlatFace"
sketch15.AttachmentOffset = App.Placement(Vector(0, 0, 5), App.Rotation())
sketch15.addGeometry(Part.Circle(Vector(10, 81.974649, 0), Vector(0, 0, 1), 0.4), False)
sketch15.addConstraint([
    Sketcher.Constraint("Diameter", 0, 0.8),
    Sketcher.Constraint("DistanceX", -1, 1, 0, 3, 10.0),
    Sketcher.Constraint("DistanceY", -1, 1, 0, 3, 81.974649),
])
pocket14 = body.newObject("PartDesign::Pocket", "Pocket013")
pocket14.Profile = sketch15
pocket14.Type = "UpToFirst"

# Sketch on XY plane
sketch16 = body.newObject("Sketcher::SketchObject", "Sketch015")
sketch16.AttachmentSupport = (doc.getObject("XY_Plane"), [""])
sketch16.MapMode = "FlatFace"
sketch16.AttachmentOffset = App.Placement(Vector(0, 0, 5), App.Rotation())
sketch16.addGeometry(Part.Circle(Vector(10, 108.974649, 0), Vector(0, 0, 1), 0.4), False)
sketch16.addConstraint([
    Sketcher.Constraint("Diameter", 0, 0.8),
    Sketcher.Constraint("DistanceX", -1, 1, 0, 3, 10.0),
    Sketcher.Constraint("DistanceY", -1, 1, 0, 3, 108.974649),
])
pocket15 = body.newObject("PartDesign::Pocket", "Pocket014")
pocket15.Profile = sketch16
pocket15.Type = "UpToFirst"

doc.recompute()
